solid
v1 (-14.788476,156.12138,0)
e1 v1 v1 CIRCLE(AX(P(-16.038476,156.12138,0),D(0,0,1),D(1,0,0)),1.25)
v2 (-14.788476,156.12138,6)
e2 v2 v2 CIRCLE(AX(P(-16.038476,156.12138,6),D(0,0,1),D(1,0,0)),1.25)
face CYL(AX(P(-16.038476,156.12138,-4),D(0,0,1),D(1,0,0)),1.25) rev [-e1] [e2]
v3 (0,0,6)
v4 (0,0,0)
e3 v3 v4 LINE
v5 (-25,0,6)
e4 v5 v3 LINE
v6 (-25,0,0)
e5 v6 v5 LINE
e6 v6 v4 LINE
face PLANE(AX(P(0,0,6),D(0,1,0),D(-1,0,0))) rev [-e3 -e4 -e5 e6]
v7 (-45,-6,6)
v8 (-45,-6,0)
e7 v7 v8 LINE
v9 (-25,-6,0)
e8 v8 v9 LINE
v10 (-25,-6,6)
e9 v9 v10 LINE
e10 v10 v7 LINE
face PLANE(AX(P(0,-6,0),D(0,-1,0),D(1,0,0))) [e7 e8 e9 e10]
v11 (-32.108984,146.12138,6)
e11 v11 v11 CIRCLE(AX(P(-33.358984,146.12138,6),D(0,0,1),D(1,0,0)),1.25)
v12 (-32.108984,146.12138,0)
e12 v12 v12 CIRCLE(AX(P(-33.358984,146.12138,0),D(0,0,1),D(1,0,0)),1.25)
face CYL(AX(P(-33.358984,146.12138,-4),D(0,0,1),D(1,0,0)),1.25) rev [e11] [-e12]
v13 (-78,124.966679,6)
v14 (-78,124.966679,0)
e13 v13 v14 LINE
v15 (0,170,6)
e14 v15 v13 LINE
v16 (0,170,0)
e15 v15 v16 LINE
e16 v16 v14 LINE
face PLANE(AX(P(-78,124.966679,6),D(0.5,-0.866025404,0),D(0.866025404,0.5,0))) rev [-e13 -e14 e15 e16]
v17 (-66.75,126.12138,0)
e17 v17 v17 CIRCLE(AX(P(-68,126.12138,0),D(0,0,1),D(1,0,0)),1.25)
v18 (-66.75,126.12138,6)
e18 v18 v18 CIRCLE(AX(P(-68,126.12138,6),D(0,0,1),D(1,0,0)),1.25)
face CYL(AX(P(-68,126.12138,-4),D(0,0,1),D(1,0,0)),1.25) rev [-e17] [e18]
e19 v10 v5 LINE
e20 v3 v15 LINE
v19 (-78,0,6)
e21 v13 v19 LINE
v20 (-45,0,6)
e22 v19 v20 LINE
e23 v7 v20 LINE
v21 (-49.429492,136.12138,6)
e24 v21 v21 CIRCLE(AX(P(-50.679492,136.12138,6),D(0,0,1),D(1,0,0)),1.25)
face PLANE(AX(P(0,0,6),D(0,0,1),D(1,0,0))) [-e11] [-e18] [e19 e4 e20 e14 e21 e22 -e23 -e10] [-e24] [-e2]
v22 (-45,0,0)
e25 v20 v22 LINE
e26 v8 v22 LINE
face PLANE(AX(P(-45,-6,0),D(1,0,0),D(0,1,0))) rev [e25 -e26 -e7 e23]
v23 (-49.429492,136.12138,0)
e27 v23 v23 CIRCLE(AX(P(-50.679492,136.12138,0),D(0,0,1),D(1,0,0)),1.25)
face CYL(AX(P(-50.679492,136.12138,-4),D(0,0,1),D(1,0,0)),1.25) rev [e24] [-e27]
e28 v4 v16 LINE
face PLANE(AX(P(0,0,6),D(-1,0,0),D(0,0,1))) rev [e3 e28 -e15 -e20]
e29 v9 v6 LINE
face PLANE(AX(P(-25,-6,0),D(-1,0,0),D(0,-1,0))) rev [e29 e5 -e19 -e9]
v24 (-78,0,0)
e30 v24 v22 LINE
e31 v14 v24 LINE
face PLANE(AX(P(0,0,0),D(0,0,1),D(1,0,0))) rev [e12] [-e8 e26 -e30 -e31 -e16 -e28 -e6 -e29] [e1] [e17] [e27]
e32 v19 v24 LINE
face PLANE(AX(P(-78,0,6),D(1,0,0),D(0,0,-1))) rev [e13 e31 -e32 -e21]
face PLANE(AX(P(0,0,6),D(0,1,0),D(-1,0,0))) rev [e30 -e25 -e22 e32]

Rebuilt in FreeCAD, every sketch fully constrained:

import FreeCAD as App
import Part
import Sketcher
Q = App.Units.Quantity

doc = App.newDocument("Part")
body = doc.addObject("PartDesign::Body", "Body")

# Sketch on XY plane
sketch1 = body.newObject("Sketcher::SketchObject", "Sketch")
sketch1.AttachmentSupport = (doc.getObject("XY_Plane"), [""])
sketch1.MapMode = "FlatFace"
sketch1.addGeometry(Part.LineSegment(App.Vector(-78, 125, 0), App.Vector(-78, 0, 0)), False)
sketch1.addGeometry(Part.LineSegment(App.Vector(-78, 0, 0), App.Vector(0, 0, 0)), False)
sketch1.addGeometry(Part.LineSegment(App.Vector(0, 0, 0), App.Vector(0, 170, 0)), False)
sketch1.addGeometry(Part.LineSegment(App.Vector(0, 170, 0), App.Vector(-78, 125, 0)), False)
sketch1.addConstraint(Sketcher.Constraint("Coincident", 0, 2, 1, 1))
sketch1.addConstraint(Sketcher.Constraint("Coincident", 1, 2, 2, 1))
sketch1.addConstraint(Sketcher.Constraint("Coincident", 2, 2, 3, 1))
sketch1.addConstraint(Sketcher.Constraint("Coincident", 3, 2, 0, 1))
sketch1.addConstraint(Sketcher.Constraint("Vertical", 0))
sketch1.addConstraint(Sketcher.Constraint("Horizontal", 1))
sketch1.addConstraint(Sketcher.Constraint("Vertical", 2))
sketch1.addConstraint(Sketcher.Constraint("Coincident", 1, 2, -1, 1))
sketch1.addConstraint(Sketcher.Constraint("DistanceX", 1, 1, 1, 2, 78.0))
sketch1.addConstraint(Sketcher.Constraint("DistanceY", 2, 1, 2, 2, 170.0))
sketch1.addConstraint(Sketcher.Constraint("Angle", 3, Q("-150 deg")))
pad1 = body.newObject("PartDesign::Pad", "Pad")
pad1.Profile = sketch1
pad1.Length = 6

# Sketch on XY plane
sketch2 = body.newObject("Sketcher::SketchObject", "Sketch001")
sketch2.AttachmentSupport = (doc.getObject("XY_Plane"), [""])
sketch2.MapMode = "FlatFace"
sketch2.AttachmentOffset = App.Placement(App.Vector(0, 0, 6), App.Rotation())
sketch2.addGeometry(Part.Circle(App.Vector(-68, 126.1, 0), App.Vector(0, 0, 1), 1.2), False)
sketch2.addGeometry(Part.Circle(App.Vector(-50.7, 136.1, 0), App.Vector(0, 0, 1), 1.2), False)
sketch2.addGeometry(Part.Circle(App.Vector(-16, 156.1, 0), App.Vector(0, 0, 1), 1.2), False)
sketch2.addGeometry(Part.Circle(App.Vector(-33.4, 146.1, 0), App.Vector(0, 0, 1), 1.2), False)
sketch2.addConstraint(Sketcher.Constraint("Equal", 0, 1))
sketch2.addConstraint(Sketcher.Constraint("Equal", 1, 2))
sketch2.addConstraint(Sketcher.Constraint("Equal", 2, 3))
sketch2.addConstraint(Sketcher.Constraint("Diameter", 0, 2.5))
sketch2.addConstraint(Sketcher.Constraint("DistanceX", 0, 3, -1, 1, 68.0))
sketch2.addConstraint(Sketcher.Constraint("DistanceY", 0, 3, 1, 3, 10.0))
sketch2.addConstraint(Sketcher.Constraint("DistanceY", 1, 3, 2, 3, 20.0))
sketch2.addConstraint(Sketcher.Constraint("DistanceY", 1, 3, 3, 3, 10.0))
sketch2.addConstraint(Sketcher.Constraint("DistanceY", -1, 1, 0, 3, 126.12138))
sketch2.addConstraint(Sketcher.Constraint("DistanceX", 1, 3, -1, 1, 50.679492))
sketch2.addConstraint(Sketcher.Constraint("DistanceX", 1, 3, 3, 3, 17.320508))
sketch2.addConstraint(Sketcher.Constraint("DistanceX", 3, 3, 2, 3, 17.320508))
pocket1 = body.newObject("PartDesign::Pocket", "Pocket")
pocket1.Profile = sketch2
pocket1.Length = 10

# Sketch on XZ plane
sketch3 = body.newObject("Sketcher::SketchObject", "Sketch002")
sketch3.AttachmentSupport = (doc.getObject("XZ_Plane"), [""])
sketch3.MapMode = "FlatFace"
sketch3.addGeometry(Part.LineSegment(App.Vector(-45, 6, 0), App.Vector(-45, 0, 0)), False)
sketch3.addGeometry(Part.LineSegment(App.Vector(-45, 0, 0), App.Vector(-25, 0, 0)), False)
sketch3.addGeometry(Part.LineSegment(App.Vector(-25, 0, 0), App.Vector(-25, 6, 0)), False)
sketch3.addGeometry(Part.LineSegment(App.Vector(-25, 6, 0), App.Vector(-45, 6, 0)), False)
sketch3.addConstraint(Sketcher.Constraint("Coincident", 0, 2, 1, 1))
sketch3.addConstraint(Sketcher.Constraint("Coincident", 1, 2, 2, 1))
sketch3.addConstraint(Sketcher.Constraint("Coincident", 2, 2, 3, 1))
sketch3.addConstraint(Sketcher.Constraint("Coincident", 3, 2, 0, 1))
sketch3.addConstraint(Sketcher.Constraint("Vertical", 0))
sketch3.addConstraint(Sketcher.Constraint("Horizontal", 1))
sketch3.addConstraint(Sketcher.Constraint("Vertical", 2))
sketch3.addConstraint(Sketcher.Constraint("Horizontal", 3))
sketch3.addConstraint(Sketcher.Constraint("PointOnObject", 0, 2, -1))
sketch3.addConstraint(Sketcher.Constraint("DistanceX", 1, 1, 1, 2, 20.0))
sketch3.addConstraint(Sketcher.Constraint("DistanceY", 0, 2, 0, 1, 6.0))
sketch3.addConstraint(Sketcher.Constraint("DistanceX", 0, 2, -1, 1, 45.0))
pad2 = body.newObject("PartDesign::Pad", "Pad001")
pad2.Profile = sketch3
pad2.Length = 6

doc.recompute()
